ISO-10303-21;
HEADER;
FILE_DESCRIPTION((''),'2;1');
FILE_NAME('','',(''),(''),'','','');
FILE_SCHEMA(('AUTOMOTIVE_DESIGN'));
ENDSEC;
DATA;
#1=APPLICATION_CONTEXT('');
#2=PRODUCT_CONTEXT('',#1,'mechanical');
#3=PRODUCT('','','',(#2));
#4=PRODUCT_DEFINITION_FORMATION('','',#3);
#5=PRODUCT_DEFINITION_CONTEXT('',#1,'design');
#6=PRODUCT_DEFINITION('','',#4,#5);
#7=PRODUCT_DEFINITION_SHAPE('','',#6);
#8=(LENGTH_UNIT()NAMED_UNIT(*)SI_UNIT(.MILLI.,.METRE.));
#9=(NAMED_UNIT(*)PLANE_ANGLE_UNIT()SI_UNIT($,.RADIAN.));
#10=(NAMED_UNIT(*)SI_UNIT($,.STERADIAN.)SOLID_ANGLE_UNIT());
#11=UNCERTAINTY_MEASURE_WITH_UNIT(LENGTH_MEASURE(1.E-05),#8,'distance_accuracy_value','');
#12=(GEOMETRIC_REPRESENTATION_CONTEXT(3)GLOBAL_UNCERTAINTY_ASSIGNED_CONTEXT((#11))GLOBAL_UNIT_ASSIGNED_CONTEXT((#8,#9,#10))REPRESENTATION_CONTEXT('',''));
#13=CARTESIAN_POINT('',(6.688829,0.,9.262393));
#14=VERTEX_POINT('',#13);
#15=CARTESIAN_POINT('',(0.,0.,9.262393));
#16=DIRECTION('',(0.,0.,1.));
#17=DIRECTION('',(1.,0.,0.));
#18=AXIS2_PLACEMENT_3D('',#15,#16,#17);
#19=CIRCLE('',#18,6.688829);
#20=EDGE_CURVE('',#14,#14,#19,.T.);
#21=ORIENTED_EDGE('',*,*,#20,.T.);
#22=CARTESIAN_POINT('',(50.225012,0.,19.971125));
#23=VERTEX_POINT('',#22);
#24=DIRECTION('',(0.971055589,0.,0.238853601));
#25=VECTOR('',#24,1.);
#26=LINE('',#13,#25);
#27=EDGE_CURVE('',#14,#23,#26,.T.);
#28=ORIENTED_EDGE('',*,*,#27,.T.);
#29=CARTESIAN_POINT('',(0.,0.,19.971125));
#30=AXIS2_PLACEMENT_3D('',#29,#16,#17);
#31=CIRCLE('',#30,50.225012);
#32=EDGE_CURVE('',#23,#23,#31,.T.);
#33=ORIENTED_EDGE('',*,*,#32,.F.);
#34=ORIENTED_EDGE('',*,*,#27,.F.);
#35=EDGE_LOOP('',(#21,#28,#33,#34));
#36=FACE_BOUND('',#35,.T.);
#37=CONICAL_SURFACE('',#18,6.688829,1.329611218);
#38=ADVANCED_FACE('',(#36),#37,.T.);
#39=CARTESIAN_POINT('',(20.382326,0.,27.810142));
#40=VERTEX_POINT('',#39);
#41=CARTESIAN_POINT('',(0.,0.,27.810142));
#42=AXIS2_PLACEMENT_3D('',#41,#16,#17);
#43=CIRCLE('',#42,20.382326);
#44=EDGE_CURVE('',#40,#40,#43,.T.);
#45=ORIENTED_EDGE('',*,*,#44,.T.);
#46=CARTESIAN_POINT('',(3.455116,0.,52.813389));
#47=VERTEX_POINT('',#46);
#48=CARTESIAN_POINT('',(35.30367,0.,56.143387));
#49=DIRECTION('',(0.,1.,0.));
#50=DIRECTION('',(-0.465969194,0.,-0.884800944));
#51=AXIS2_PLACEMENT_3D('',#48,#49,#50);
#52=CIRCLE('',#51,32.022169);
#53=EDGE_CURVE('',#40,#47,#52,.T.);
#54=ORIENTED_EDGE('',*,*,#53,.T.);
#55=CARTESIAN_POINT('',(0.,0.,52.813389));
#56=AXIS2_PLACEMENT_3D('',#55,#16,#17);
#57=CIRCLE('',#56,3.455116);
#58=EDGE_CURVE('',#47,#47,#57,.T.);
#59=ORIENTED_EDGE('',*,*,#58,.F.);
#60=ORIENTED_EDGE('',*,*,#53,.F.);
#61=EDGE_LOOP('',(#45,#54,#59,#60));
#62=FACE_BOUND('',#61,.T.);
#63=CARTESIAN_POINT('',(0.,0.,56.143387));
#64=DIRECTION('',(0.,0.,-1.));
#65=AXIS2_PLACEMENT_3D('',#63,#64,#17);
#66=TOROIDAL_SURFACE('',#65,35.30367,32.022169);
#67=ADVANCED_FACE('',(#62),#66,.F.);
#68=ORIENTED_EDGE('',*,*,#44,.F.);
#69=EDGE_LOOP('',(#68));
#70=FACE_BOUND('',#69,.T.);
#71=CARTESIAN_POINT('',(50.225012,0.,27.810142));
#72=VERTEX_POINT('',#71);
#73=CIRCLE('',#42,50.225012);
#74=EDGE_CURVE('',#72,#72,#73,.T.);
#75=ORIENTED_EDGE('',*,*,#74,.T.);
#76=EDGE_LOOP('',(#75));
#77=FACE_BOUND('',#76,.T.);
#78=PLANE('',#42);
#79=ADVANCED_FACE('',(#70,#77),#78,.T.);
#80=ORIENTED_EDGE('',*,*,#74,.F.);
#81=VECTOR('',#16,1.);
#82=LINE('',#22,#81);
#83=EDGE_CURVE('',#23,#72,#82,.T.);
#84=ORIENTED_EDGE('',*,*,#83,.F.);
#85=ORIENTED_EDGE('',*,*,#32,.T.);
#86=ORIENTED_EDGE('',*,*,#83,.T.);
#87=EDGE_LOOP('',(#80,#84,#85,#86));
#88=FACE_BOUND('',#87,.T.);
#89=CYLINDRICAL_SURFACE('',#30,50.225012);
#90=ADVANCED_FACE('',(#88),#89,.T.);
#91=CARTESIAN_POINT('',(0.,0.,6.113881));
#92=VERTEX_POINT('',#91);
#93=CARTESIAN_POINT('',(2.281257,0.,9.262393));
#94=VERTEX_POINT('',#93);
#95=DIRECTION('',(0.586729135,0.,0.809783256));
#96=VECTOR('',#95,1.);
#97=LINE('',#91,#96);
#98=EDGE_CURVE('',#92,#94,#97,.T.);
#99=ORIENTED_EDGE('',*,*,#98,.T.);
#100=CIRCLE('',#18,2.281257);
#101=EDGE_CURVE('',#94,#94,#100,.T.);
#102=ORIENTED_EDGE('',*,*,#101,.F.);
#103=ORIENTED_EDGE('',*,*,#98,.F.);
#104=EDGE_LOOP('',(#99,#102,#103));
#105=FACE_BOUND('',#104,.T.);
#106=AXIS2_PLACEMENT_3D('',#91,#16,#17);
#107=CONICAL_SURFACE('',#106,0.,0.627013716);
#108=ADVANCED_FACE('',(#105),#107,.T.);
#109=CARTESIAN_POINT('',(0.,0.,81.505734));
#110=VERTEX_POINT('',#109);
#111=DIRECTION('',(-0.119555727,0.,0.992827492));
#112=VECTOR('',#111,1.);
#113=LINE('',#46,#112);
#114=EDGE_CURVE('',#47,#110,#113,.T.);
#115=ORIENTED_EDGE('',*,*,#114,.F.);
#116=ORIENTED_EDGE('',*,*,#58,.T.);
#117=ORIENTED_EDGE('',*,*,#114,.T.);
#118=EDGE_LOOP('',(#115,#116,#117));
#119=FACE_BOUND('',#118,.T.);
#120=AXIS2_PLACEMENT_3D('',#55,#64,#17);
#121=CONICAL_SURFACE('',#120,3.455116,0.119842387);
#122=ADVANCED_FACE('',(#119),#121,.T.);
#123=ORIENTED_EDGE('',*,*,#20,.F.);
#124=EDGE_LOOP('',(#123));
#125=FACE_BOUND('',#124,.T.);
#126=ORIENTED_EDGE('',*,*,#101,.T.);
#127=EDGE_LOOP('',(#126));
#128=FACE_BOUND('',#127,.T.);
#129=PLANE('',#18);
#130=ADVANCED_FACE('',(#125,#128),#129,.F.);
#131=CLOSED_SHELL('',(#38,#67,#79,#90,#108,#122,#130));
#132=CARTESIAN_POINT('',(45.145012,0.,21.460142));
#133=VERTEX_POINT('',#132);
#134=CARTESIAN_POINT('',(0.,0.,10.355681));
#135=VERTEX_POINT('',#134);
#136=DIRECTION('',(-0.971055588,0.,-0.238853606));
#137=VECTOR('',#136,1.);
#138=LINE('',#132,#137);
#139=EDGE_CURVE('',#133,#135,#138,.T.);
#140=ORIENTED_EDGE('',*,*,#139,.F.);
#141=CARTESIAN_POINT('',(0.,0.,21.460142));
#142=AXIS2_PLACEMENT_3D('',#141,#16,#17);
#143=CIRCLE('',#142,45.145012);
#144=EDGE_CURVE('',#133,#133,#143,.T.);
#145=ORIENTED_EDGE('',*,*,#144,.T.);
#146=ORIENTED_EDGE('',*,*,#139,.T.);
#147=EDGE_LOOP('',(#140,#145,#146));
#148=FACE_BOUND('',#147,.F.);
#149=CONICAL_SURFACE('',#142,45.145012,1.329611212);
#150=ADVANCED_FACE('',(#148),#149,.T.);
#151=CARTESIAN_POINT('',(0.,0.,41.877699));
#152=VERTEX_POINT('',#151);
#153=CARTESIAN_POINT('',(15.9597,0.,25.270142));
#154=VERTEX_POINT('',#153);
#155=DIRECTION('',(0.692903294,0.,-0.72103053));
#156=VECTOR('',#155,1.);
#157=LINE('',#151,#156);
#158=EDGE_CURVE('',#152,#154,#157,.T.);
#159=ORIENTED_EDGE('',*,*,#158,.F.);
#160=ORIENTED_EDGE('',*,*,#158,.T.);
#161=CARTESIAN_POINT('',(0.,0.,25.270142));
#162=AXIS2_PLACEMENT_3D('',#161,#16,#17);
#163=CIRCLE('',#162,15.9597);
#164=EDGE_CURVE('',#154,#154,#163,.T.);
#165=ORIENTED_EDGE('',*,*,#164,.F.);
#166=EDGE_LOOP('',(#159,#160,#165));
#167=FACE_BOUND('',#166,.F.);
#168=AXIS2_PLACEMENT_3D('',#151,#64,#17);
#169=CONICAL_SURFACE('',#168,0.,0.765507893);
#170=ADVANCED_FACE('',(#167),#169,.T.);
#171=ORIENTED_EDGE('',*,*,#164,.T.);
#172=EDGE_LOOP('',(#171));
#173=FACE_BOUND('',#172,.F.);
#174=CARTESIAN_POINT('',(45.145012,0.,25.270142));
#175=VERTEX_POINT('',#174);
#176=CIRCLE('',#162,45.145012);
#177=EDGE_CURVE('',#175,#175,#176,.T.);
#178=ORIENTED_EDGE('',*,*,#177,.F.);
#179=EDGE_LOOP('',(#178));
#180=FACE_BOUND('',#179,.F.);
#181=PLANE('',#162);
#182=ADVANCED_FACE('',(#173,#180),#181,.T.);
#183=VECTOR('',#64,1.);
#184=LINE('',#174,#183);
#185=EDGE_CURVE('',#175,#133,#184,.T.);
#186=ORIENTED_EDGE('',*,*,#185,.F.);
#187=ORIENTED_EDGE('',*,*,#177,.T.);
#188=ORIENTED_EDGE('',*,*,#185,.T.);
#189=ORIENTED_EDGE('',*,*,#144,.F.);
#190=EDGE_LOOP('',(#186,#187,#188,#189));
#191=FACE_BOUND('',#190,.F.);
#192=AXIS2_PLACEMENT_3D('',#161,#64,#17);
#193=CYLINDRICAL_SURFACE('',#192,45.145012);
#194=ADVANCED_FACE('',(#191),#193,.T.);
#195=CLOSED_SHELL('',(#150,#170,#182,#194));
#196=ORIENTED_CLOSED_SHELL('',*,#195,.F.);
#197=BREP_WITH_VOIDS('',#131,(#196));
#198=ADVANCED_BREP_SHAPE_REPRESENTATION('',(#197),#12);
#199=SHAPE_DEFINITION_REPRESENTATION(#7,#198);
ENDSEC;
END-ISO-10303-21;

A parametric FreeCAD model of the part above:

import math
import FreeCAD as App
import Part
import Sketcher

V = App.Vector
Q = App.Units.Quantity

doc = App.newDocument("Part")
body = doc.addObject("PartDesign::Body", "Body")

# Sketch on XZ plane
sketch1 = body.newObject("Sketcher::SketchObject", "Sketch")
sketch1.AttachmentSupport = (doc.getObject("XZ_Plane"), [""])
sketch1.MapMode = "FlatFace"
sketch1.addGeometry(Part.LineSegment(V(2.3, 9.3, 0), V(6.7, 9.3, 0)), False)
sketch1.addGeometry(Part.LineSegment(V(6.7, 9.3, 0), V(50.2, 20, 0)), False)
sketch1.addGeometry(Part.LineSegment(V(50.2, 20, 0), V(50.2, 27.8, 0)), False)
sketch1.addGeometry(Part.LineSegment(V(50.2, 27.8, 0), V(20.4, 27.8, 0)), False)
sketch1.addGeometry(Part.ArcOfCircle(Part.Circle(V(35.3, 56.1, 0), V(0, 0, 1), 32), math.radians(-174), math.radians(-118)), False)
sketch1.addGeometry(Part.LineSegment(V(3.5, 52.8, 0), V(0, 81.5, 0)), False)
sketch1.addGeometry(Part.LineSegment(V(0, 81.5, 0), V(0, 41.9, 0)), False)
sketch1.addGeometry(Part.LineSegment(V(0, 41.9, 0), V(16, 25.3, 0)), False)
sketch1.addGeometry(Part.LineSegment(V(16, 25.3, 0), V(45.1, 25.3, 0)), False)
sketch1.addGeometry(Part.LineSegment(V(45.1, 25.3, 0), V(45.1, 21.5, 0)), False)
sketch1.addGeometry(Part.LineSegment(V(45.1, 21.5, 0), V(0, 10.4, 0)), False)
sketch1.addGeometry(Part.LineSegment(V(0, 10.4, 0), V(0, 6.1, 0)), False)
sketch1.addGeometry(Part.LineSegment(V(0, 6.1, 0), V(2.3, 9.3, 0)), False)
sketch1.addConstraint(Sketcher.Constraint("Coincident", 0, 2, 1, 1))
sketch1.addConstraint(Sketcher.Constraint("Coincident", 1, 2, 2, 1))
sketch1.addConstraint(Sketcher.Constraint("Coincident", 2, 2, 3, 1))
sketch1.addConstraint(Sketcher.Constraint("Coincident", 3, 2, 4, 2))
sketch1.addConstraint(Sketcher.Constraint("Coincident", 4, 1, 5, 1))
sketch1.addConstraint(Sketcher.Constraint("Coincident", 5, 2, 6, 1))
sketch1.addConstraint(Sketcher.Constraint("Coincident", 6, 2, 7, 1))
sketch1.addConstraint(Sketcher.Constraint("Coincident", 7, 2, 8, 1))
sketch1.addConstraint(Sketcher.Constraint("Coincident", 8, 2, 9, 1))
sketch1.addConstraint(Sketcher.Constraint("Coincident", 9, 2, 10, 1))
sketch1.addConstraint(Sketcher.Constraint("Coincident", 10, 2, 11, 1))
sketch1.addConstraint(Sketcher.Constraint("Coincident", 11, 2, 12, 1))
sketch1.addConstraint(Sketcher.Constraint("Coincident", 12, 2, 0, 1))
sketch1.addConstraint(Sketcher.Constraint("Horizontal", 0))
sketch1.addConstraint(Sketcher.Constraint("Vertical", 2))
sketch1.addConstraint(Sketcher.Constraint("Horizontal", 3))
sketch1.addConstraint(Sketcher.Constraint("Vertical", 6))
sketch1.addConstraint(Sketcher.Constraint("Horizontal", 8))
sketch1.addConstraint(Sketcher.Constraint("Vertical", 9))
sketch1.addConstraint(Sketcher.Constraint("Vertical", 11))
sketch1.addConstraint(Sketcher.Constraint("PointOnObject", 5, 2, -2))
sketch1.addConstraint(Sketcher.Constraint("PointOnObject", 10, 2, -2))
sketch1.addConstraint(Sketcher.Constraint("Parallel", 1, 10))
sketch1.addConstraint(Sketcher.Constraint("DistanceY", 9, 2, 9, 1, Q("0.15 in")))
sketch1.addConstraint(Sketcher.Constraint("DistanceY", 7, 2, 3, 2, Q("0.1 in")))
sketch1.addConstraint(Sketcher.Constraint("DistanceX", 8, 2, 2, 2, Q("0.2 in")))
sketch1.addConstraint(Sketcher.Constraint("DistanceY", 11, 2, 11, 1, Q("0.167 in")))
sketch1.addConstraint(Sketcher.Constraint("Radius", 4, Q("32.022169 mm")))
sketch1.addConstraint(Sketcher.Constraint("DistanceY", -1, 1, 6, 2, Q("41.877699 mm")))
sketch1.addConstraint(Sketcher.Constraint("DistanceX", -1, 1, 7, 2, Q("15.9597 mm")))
sketch1.addConstraint(Sketcher.Constraint("DistanceY", 4, 1, 4, 3, Q("3.329998 mm")))
sketch1.addConstraint(Sketcher.Constraint("DistanceX", 0, 1, 0, 2, Q("4.407572 mm")))
sketch1.addConstraint(Sketcher.Constraint("DistanceX", 3, 2, 3, 1, Q("29.842686 mm")))
sketch1.addConstraint(Sketcher.Constraint("DistanceX", 8, 1, 8, 2, Q("29.185312 mm")))
sketch1.addConstraint(Sketcher.Constraint("DistanceY", 2, 1, 2, 2, Q("7.839017 mm")))
sketch1.addConstraint(Sketcher.Constraint("DistanceY", 6, 2, 6, 1, Q("39.628035 mm")))
sketch1.addConstraint(Sketcher.Constraint("DistanceX", -1, 1, 4, 3, Q("35.30367 mm")))
sketch1.addConstraint(Sketcher.Constraint("DistanceX", -1, 1, 0, 2, Q("6.688829 mm")))
sketch1.addConstraint(Sketcher.Constraint("DistanceY", -1, 1, 2, 2, Q("27.810142 mm")))
sketch1.addConstraint(Sketcher.Constraint("DistanceY", -1, 1, 10, 2, Q("10.355681 mm")))
revolution = body.newObject("PartDesign::Revolution", "Revolution")
revolution.Profile = sketch1
revolution.ReferenceAxis = (sketch1, ["V_Axis"])
revolution.Angle = 360

doc.recompute()
